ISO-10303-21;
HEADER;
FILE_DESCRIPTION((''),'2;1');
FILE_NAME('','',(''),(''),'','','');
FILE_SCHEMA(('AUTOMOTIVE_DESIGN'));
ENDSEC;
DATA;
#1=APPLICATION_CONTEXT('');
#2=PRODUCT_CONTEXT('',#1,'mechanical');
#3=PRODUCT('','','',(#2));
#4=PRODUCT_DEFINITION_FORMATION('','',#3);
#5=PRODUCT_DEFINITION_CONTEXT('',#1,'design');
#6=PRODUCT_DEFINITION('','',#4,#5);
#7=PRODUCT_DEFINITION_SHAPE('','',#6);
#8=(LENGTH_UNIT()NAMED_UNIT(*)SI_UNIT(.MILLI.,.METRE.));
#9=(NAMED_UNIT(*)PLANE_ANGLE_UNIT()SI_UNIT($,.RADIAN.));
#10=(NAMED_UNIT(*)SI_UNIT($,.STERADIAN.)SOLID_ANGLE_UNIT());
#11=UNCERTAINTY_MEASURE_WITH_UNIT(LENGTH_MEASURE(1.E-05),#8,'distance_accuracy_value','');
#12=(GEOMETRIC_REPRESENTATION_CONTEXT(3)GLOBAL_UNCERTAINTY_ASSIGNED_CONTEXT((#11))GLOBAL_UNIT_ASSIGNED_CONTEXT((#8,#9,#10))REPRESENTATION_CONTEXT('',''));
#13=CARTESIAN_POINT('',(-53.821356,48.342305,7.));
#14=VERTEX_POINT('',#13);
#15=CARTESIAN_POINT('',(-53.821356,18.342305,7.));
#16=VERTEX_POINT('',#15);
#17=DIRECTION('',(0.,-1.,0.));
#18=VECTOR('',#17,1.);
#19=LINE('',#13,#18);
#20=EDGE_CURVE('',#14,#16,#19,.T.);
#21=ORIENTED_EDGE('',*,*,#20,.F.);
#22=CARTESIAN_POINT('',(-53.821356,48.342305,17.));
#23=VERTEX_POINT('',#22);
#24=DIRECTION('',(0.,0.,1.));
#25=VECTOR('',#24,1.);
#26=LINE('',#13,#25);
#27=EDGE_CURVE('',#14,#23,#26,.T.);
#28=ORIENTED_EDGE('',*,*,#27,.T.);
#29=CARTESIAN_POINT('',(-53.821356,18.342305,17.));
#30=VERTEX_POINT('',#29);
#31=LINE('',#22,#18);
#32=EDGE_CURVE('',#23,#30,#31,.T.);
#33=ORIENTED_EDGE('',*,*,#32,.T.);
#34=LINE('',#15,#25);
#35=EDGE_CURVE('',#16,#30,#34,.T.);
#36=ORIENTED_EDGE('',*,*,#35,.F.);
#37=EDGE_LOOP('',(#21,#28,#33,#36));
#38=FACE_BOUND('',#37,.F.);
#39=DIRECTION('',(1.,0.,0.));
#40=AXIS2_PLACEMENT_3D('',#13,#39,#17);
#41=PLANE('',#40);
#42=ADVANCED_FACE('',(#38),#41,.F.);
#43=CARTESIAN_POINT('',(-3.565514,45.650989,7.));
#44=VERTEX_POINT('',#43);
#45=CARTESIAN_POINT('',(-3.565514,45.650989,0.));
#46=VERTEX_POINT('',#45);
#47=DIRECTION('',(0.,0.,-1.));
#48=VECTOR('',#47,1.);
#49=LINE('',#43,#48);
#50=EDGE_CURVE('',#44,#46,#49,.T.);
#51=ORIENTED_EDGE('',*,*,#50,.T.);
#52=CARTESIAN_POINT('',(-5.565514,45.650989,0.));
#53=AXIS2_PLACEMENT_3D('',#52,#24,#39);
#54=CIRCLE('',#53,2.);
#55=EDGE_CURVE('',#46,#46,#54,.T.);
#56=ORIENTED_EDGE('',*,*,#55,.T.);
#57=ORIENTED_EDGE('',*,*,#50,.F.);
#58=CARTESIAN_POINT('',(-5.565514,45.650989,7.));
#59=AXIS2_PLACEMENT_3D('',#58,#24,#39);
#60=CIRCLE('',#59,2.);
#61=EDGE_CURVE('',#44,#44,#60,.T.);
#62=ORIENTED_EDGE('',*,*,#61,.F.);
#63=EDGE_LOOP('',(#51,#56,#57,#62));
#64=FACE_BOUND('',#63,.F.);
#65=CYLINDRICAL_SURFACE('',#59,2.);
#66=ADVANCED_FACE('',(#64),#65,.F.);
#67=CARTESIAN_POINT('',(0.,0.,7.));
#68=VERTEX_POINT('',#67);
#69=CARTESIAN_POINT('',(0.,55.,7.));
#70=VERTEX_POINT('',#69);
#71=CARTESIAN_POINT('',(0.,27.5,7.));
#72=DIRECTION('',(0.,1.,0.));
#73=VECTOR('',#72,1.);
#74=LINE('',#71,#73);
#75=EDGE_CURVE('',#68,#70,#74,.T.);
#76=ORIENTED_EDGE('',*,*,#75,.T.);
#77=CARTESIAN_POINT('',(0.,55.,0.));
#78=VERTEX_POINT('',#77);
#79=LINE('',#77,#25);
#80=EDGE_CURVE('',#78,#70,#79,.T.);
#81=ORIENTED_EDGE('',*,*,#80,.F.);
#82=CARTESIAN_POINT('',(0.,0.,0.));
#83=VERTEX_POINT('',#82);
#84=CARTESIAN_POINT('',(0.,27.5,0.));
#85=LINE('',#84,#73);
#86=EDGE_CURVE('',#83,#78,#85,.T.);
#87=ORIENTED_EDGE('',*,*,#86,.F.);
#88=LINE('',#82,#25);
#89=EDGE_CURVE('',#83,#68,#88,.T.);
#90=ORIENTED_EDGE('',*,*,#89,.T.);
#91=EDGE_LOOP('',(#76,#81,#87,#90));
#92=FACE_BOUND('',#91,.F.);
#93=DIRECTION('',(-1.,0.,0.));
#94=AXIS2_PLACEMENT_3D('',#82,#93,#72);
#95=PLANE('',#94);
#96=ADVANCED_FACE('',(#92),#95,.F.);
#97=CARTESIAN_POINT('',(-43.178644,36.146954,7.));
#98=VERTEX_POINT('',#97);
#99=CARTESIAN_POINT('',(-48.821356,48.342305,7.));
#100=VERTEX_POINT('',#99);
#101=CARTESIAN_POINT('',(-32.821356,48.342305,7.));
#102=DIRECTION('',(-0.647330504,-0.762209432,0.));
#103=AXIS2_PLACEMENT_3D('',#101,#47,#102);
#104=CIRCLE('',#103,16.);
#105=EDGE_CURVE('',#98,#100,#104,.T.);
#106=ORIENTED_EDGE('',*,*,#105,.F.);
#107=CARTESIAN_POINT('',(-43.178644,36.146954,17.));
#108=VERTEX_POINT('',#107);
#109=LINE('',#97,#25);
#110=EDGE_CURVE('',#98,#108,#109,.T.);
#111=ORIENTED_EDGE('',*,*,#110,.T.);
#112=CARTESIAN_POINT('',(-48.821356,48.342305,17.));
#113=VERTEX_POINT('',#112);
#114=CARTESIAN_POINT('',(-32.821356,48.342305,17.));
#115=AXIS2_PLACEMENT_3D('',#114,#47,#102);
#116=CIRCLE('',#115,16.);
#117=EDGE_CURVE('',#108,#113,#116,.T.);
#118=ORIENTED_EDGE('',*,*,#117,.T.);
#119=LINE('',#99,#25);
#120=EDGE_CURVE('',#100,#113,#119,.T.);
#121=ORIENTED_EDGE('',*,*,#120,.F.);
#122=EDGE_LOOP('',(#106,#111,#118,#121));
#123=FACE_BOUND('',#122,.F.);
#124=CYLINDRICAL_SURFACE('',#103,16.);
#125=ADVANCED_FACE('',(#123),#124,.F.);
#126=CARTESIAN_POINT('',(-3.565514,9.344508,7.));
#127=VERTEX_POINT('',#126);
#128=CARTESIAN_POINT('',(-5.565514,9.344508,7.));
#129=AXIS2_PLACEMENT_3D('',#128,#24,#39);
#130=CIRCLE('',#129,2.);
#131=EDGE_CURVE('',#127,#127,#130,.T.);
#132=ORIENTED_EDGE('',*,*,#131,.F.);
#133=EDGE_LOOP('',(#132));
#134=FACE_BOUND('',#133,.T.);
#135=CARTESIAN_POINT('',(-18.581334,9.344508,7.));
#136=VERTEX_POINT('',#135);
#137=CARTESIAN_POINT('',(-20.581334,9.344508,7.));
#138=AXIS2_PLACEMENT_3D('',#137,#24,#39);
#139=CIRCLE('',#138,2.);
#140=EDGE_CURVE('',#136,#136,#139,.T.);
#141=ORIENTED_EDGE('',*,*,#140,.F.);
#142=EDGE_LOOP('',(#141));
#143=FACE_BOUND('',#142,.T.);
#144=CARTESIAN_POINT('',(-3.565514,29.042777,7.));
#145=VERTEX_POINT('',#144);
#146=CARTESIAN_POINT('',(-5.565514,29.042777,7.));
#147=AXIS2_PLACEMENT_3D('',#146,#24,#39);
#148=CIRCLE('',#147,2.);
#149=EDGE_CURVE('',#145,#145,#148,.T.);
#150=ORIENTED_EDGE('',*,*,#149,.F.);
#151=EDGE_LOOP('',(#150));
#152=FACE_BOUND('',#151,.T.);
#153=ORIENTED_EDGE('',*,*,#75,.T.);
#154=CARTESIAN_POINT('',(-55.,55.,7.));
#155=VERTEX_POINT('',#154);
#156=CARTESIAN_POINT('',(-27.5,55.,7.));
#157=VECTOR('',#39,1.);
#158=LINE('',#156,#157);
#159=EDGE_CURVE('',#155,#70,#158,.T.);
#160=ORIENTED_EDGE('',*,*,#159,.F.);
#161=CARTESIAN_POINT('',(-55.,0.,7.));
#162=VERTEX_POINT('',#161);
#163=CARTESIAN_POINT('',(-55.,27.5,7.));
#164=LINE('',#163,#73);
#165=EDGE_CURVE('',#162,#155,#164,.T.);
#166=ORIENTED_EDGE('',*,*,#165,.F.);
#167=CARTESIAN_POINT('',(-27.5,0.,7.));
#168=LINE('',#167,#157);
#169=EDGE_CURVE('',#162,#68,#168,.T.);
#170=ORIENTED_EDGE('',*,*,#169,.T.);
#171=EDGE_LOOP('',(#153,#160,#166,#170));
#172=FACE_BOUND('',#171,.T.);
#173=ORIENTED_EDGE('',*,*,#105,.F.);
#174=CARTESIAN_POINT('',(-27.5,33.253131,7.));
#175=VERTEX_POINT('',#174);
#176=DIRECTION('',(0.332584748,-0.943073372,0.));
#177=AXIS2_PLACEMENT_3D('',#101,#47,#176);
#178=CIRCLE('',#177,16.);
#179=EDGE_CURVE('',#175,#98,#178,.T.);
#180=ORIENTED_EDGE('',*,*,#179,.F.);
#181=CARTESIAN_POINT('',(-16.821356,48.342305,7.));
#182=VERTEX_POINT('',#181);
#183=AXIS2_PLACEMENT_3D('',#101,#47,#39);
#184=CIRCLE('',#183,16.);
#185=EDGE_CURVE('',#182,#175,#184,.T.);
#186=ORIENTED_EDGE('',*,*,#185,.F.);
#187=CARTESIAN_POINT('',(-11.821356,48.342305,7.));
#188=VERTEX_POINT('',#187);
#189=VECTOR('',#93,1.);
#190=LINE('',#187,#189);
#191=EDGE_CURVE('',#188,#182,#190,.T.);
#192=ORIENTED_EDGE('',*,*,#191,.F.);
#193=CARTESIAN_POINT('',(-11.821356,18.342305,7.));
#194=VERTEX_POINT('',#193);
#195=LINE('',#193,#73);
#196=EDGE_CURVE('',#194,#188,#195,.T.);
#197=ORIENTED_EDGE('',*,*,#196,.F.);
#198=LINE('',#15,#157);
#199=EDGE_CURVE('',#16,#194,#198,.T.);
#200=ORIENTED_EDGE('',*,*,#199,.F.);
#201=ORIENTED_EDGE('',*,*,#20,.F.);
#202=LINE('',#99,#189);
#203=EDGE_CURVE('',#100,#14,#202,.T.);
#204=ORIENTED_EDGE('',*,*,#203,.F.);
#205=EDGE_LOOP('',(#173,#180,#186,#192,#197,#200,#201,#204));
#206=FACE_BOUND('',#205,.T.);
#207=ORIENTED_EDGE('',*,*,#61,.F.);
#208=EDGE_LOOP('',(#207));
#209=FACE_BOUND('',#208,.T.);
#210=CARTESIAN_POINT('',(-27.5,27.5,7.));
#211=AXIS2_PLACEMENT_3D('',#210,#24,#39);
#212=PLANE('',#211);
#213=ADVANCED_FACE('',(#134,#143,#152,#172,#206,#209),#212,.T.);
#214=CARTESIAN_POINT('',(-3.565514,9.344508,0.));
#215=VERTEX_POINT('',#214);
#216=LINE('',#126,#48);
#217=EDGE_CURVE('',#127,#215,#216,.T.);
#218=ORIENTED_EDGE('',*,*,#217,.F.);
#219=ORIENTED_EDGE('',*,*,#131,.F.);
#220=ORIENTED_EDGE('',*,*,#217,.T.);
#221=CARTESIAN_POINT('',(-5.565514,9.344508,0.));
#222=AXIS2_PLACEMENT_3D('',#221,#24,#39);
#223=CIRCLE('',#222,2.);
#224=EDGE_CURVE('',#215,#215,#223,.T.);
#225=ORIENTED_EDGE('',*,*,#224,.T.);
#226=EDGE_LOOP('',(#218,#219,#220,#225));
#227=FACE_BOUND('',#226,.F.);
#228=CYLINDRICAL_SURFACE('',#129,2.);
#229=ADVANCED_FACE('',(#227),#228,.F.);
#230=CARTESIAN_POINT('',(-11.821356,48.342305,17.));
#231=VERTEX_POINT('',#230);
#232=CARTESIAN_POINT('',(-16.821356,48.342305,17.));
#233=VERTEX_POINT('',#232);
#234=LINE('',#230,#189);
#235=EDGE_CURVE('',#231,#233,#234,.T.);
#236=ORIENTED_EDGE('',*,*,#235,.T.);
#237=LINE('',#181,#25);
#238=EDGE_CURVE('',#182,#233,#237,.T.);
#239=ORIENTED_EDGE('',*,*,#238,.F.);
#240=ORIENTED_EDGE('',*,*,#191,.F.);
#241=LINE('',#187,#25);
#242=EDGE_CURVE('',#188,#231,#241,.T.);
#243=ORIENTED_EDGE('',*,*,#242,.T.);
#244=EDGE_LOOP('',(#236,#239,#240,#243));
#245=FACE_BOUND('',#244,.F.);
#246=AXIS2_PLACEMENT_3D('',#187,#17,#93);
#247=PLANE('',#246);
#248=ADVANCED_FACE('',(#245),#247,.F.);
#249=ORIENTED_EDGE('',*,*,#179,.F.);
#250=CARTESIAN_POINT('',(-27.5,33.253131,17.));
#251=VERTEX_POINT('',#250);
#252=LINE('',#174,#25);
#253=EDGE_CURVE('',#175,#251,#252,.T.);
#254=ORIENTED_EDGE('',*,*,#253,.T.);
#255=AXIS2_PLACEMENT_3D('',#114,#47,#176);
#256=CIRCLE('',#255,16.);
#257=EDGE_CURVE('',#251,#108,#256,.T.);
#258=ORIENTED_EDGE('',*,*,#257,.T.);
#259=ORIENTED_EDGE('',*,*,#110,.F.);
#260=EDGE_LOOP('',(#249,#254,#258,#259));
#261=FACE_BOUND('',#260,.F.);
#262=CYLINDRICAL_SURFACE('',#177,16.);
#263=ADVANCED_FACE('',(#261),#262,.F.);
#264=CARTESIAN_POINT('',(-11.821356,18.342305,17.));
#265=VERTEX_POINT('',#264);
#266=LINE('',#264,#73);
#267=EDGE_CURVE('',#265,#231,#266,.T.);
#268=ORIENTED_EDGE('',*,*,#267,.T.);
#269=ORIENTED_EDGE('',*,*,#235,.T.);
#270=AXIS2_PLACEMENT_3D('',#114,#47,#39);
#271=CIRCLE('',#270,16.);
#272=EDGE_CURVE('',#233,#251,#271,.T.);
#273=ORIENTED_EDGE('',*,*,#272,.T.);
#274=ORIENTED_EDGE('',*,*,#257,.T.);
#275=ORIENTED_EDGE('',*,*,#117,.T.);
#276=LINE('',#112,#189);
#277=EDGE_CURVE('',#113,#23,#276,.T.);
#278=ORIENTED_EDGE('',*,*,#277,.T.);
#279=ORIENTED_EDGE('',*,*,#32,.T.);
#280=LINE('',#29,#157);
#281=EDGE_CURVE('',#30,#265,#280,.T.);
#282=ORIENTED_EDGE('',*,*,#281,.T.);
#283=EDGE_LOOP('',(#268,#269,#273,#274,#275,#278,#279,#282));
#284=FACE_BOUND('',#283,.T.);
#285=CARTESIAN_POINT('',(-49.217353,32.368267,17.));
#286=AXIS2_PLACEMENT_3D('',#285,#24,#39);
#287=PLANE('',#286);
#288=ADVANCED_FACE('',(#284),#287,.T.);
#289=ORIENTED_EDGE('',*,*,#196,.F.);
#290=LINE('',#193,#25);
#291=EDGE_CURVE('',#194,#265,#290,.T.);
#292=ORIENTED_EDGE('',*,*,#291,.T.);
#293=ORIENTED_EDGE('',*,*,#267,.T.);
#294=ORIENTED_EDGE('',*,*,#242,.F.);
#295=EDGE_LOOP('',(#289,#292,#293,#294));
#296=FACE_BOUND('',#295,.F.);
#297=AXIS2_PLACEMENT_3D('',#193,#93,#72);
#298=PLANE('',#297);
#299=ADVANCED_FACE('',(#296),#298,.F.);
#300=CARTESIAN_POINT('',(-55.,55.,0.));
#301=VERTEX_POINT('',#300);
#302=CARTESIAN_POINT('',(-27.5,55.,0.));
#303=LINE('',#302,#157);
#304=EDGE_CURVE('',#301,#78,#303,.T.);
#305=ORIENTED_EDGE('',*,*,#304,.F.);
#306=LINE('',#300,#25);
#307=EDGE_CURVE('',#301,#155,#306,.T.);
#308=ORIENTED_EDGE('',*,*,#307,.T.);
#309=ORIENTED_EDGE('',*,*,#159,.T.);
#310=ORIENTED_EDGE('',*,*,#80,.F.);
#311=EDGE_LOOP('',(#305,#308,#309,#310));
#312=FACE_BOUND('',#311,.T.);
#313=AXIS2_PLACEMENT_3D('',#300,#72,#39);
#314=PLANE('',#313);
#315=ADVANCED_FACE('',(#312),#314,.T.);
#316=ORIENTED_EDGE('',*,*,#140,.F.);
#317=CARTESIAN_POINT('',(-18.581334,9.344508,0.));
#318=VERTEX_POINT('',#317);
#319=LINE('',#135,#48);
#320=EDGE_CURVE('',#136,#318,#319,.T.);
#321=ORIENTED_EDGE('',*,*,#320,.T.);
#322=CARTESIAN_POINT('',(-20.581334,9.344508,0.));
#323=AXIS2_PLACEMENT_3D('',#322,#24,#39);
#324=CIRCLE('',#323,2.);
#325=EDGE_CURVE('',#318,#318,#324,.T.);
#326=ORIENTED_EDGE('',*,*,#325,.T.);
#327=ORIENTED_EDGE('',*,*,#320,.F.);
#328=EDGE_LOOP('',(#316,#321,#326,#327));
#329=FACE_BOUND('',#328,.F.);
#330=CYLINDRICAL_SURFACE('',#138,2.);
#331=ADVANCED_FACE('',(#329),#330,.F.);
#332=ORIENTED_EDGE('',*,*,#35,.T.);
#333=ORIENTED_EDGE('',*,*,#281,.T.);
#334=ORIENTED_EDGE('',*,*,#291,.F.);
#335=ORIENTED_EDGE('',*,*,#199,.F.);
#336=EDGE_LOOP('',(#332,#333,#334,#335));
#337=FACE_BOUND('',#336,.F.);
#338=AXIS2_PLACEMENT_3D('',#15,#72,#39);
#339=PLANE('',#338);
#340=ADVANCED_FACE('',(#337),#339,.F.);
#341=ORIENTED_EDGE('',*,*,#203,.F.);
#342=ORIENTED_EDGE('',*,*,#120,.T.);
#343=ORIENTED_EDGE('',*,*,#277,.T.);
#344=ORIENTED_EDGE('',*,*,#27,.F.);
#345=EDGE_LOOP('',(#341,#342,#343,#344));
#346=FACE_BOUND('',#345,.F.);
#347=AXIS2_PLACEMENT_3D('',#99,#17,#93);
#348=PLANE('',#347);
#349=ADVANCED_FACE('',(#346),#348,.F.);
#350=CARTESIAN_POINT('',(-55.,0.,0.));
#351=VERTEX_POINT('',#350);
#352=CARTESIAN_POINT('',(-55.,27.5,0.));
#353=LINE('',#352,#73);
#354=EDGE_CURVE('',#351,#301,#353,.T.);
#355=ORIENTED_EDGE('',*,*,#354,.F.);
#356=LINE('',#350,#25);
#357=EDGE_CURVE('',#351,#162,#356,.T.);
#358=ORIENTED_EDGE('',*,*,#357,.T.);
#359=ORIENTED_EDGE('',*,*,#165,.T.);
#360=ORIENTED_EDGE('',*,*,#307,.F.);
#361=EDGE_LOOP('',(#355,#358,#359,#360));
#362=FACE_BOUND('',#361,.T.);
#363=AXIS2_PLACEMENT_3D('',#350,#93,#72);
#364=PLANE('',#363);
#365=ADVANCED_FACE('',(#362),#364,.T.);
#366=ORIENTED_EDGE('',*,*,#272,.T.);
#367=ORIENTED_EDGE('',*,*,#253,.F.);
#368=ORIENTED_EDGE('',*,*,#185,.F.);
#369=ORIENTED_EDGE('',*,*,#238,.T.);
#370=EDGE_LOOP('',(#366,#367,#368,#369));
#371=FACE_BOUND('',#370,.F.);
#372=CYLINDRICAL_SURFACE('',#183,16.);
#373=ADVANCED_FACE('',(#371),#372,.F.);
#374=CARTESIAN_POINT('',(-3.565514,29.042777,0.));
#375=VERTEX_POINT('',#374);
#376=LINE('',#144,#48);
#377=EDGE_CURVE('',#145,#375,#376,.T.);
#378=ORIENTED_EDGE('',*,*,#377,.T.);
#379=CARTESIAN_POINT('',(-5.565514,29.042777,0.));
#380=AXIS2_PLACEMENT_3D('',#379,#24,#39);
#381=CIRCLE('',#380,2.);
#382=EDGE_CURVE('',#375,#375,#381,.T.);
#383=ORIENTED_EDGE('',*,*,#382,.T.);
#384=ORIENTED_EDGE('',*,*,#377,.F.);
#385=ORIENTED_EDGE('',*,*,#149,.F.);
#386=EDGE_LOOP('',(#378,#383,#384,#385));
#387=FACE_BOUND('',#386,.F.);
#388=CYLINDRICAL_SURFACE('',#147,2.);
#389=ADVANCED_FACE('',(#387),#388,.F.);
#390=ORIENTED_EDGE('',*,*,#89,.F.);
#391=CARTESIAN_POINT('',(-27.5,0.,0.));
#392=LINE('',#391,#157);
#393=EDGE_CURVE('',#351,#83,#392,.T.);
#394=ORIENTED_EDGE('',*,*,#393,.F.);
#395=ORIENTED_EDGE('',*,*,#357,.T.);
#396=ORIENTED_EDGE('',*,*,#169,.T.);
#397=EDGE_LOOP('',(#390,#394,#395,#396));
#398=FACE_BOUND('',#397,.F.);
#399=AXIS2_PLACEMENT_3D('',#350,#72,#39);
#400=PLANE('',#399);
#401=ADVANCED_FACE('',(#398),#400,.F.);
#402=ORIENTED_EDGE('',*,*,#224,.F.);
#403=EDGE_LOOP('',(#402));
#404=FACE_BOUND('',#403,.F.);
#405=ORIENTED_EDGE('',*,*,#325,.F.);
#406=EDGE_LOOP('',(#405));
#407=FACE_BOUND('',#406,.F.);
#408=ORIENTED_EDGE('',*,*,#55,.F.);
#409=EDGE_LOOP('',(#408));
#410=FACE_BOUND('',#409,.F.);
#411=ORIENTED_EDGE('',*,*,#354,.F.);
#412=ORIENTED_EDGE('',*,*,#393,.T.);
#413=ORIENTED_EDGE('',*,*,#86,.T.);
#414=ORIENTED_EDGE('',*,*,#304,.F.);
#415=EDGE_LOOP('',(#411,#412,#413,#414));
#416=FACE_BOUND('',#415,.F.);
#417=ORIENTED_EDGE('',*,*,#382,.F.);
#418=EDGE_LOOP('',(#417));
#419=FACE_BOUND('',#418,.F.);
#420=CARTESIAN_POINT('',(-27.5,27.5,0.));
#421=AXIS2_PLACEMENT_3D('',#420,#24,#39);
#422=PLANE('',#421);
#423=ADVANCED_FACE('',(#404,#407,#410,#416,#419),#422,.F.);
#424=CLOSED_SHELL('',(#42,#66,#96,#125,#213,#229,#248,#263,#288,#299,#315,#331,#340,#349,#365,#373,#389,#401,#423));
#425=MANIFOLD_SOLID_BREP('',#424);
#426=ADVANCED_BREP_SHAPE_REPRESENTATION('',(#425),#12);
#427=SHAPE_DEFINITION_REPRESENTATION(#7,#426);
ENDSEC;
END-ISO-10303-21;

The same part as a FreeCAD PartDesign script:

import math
import FreeCAD as App
import Part
import Sketcher


def add_polygon(sketch, points):
    """Adds a closed chain of lines whose ends are joined by coincident constraints."""
    first, n = sketch.GeometryCount, len(points)
    for a, b in zip(points, points[1:] + points[:1]):
        sketch.addGeometry(Part.LineSegment(App.Vector(*a, 0), App.Vector(*b, 0)), False)
    for i in range(n):
        sketch.addConstraint(Sketcher.Constraint("Coincident", first + i, 2, first + (i + 1) % n, 1))

doc = App.newDocument("Part")
params = doc.addObject("Spreadsheet::Sheet", "Params")
for row, (alias, value) in enumerate([
    ("sketch1_width", "55 mm"),
    ("pad1_length", "7 mm"),
    ("sketch2_radius", "16 mm"),
    ("sketch2_width", "5 mm"),
    ("sketch2_height", "30 mm"),
    ("pad2_length", "10 mm"),
    ("sketch3_diameter", "4 mm"),
], start=1):
    params.set(f"A{row}", alias)
    params.set(f"B{row}", "=" + value)
    params.setAlias(f"B{row}", alias)

body = doc.addObject("PartDesign::Body", "Body")

# Sketch on XY plane
sketch1 = doc.addObject("Sketcher::SketchObject", "Sketch")
body.addObject(sketch1)
sketch1.AttachmentSupport = (doc.XY_Plane, [""])
sketch1.MapMode = "FlatFace"
add_polygon(sketch1, [(-55, 55), (-55, 0), (0, 0), (0, 55)])  # lines 0-3
sketch1.addConstraint([
    Sketcher.Constraint("Vertical", 0),
    Sketcher.Constraint("Horizontal", 1),
    Sketcher.Constraint("Vertical", 2),
    Sketcher.Constraint("Horizontal", 3),
    Sketcher.Constraint("Coincident", 1, 2, -1, 1),
    Sketcher.Constraint("Equal", 3, 0),
    Sketcher.Constraint("DistanceX", 1, 1, 1, 2, 55.0),
])
sketch1.setExpression("Constraints[10]", "Params.sketch1_width")
pad1 = doc.addObject("PartDesign::Pad", "Pad")
body.addObject(pad1)
pad1.Profile = sketch1
pad1.setExpression("Length", "Params.pad1_length")

# Sketch on XY plane
sketch2 = doc.addObject("Sketcher::SketchObject", "Sketch001")
body.addObject(sketch2)
sketch2.AttachmentSupport = (doc.XY_Plane, [""])
sketch2.MapMode = "FlatFace"
sketch2.AttachmentOffset = App.Placement(App.Vector(0, 0, 7), App.Rotation())
sketch2.addGeometry([
    Part.ArcOfCircle(Part.Circle(App.Vector(-32.8, 48.3, 0), App.Vector(0, 0, 1), 16), math.radians(180), math.radians(230)),  # 0
    Part.LineSegment(App.Vector(-48.8, 48.3, 0), App.Vector(-53.8, 48.3, 0)),  # 1
    Part.LineSegment(App.Vector(-53.8, 48.3, 0), App.Vector(-53.8, 18.3, 0)),  # 2
    Part.LineSegment(App.Vector(-53.8, 18.3, 0), App.Vector(-11.8, 18.3, 0)),  # 3
    Part.LineSegment(App.Vector(-11.8, 18.3, 0), App.Vector(-11.8, 48.3, 0)),  # 4
    Part.LineSegment(App.Vector(-11.8, 48.3, 0), App.Vector(-16.8, 48.3, 0)),  # 5
    Part.ArcOfCircle(Part.Circle(App.Vector(-32.8, 48.3, 0), App.Vector(0, 0, 1), 16), math.radians(-71), math.radians(0)),  # 6
    Part.ArcOfCircle(Part.Circle(App.Vector(-32.8, 48.3, 0), App.Vector(0, 0, 1), 16), math.radians(-130), math.radians(-71)),  # 7
], False)
sketch2.addConstraint([
    Sketcher.Constraint("Coincident", 0, 1, 1, 1),
    Sketcher.Constraint("Coincident", 1, 2, 2, 1),
    Sketcher.Constraint("Coincident", 2, 2, 3, 1),
    Sketcher.Constraint("Coincident", 3, 2, 4, 1),
    Sketcher.Constraint("Coincident", 4, 2, 5, 1),
    Sketcher.Constraint("Coincident", 5, 2, 6, 2),
    Sketcher.Constraint("Tangent", 6, 1, 7, 2),
    Sketcher.Constraint("Tangent", 7, 1, 0, 2),
    Sketcher.Constraint("Horizontal", 1),
    Sketcher.Constraint("Vertical", 2),
    Sketcher.Constraint("Horizontal", 3),
    Sketcher.Constraint("Vertical", 4),
    Sketcher.Constraint("Horizontal", 5),
    Sketcher.Constraint("Coincident", 6, 3, 0, 3),
    Sketcher.Constraint("Horizontal", 7, 3, 0, 1),
    Sketcher.Constraint("Horizontal", 1, 2, 4, 2),
    Sketcher.Constraint("Equal", 1, 5),
    Sketcher.Constraint("Radius", 0, 16.0),
    Sketcher.Constraint("DistanceX", 1, 2, 1, 1, 5.0),
    Sketcher.Constraint("DistanceY", 2, 2, 2, 1, 30.0),
    Sketcher.Constraint("DistanceX", 6, 1, -1, 1, 27.5),
    Sketcher.Constraint("DistanceY", -1, 1, 6, 1, 33.253131),
    Sketcher.Constraint("DistanceX", 0, 1, 7, 1, 5.642712),
    Sketcher.Constraint("DistanceX", 0, 3, -1, 1, 32.821356),
])
sketch2.setExpression("Constraints[17]", "Params.sketch2_radius")
sketch2.setExpression("Constraints[18]", "Params.sketch2_width")
sketch2.setExpression("Constraints[19]", "Params.sketch2_height")
pad2 = doc.addObject("PartDesign::Pad", "Pad001")
body.addObject(pad2)
pad2.Profile = sketch2
pad2.setExpression("Length", "Params.pad2_length")

# Sketch on XY plane
sketch3 = doc.addObject("Sketcher::SketchObject", "Sketch002")
body.addObject(sketch3)
sketch3.AttachmentSupport = (doc.XY_Plane, [""])
sketch3.MapMode = "FlatFace"
sketch3.AttachmentOffset = App.Placement(App.Vector(0, 0, 7), App.Rotation())
sketch3.addGeometry([
    Part.Circle(App.Vector(-20.6, 9.3, 0), App.Vector(0, 0, 1), 2),
    Part.Circle(App.Vector(-5.6, 9.3, 0), App.Vector(0, 0, 1), 2),
    Part.Circle(App.Vector(-5.6, 29, 0), App.Vector(0, 0, 1), 2),
    Part.Circle(App.Vector(-5.6, 45.7, 0), App.Vector(0, 0, 1), 2),
], False)
sketch3.addConstraint([
    Sketcher.Constraint("Equal", 0, 1),
    Sketcher.Constraint("Equal", 1, 2),
    Sketcher.Constraint("Equal", 2, 3),
    Sketcher.Constraint("Horizontal", 0, 3, 1, 3),
    Sketcher.Constraint("Vertical", 1, 3, 2, 3),
    Sketcher.Constraint("Vertical", 2, 3, 3, 3),
    Sketcher.Constraint("Diameter", 0, 4.0),
    Sketcher.Constraint("DistanceY", -1, 1, 3, 3, 45.650989),
    Sketcher.Constraint("DistanceX", 0, 3, 1, 3, 15.015821),
    Sketcher.Constraint("DistanceY", 1, 3, 2, 3, 19.698269),
    Sketcher.Constraint("DistanceY", 1, 3, 3, 3, 36.306481),
    Sketcher.Constraint("DistanceX", 0, 3, -1, 1, 20.581334),
])
sketch3.setExpression("Constraints[6]", "Params.sketch3_diameter")
pocket1 = doc.addObject("PartDesign::Pocket", "Pocket")
body.addObject(pocket1)
pocket1.Profile = sketch3
pocket1.Type = "ThroughAll"

doc.recompute()
